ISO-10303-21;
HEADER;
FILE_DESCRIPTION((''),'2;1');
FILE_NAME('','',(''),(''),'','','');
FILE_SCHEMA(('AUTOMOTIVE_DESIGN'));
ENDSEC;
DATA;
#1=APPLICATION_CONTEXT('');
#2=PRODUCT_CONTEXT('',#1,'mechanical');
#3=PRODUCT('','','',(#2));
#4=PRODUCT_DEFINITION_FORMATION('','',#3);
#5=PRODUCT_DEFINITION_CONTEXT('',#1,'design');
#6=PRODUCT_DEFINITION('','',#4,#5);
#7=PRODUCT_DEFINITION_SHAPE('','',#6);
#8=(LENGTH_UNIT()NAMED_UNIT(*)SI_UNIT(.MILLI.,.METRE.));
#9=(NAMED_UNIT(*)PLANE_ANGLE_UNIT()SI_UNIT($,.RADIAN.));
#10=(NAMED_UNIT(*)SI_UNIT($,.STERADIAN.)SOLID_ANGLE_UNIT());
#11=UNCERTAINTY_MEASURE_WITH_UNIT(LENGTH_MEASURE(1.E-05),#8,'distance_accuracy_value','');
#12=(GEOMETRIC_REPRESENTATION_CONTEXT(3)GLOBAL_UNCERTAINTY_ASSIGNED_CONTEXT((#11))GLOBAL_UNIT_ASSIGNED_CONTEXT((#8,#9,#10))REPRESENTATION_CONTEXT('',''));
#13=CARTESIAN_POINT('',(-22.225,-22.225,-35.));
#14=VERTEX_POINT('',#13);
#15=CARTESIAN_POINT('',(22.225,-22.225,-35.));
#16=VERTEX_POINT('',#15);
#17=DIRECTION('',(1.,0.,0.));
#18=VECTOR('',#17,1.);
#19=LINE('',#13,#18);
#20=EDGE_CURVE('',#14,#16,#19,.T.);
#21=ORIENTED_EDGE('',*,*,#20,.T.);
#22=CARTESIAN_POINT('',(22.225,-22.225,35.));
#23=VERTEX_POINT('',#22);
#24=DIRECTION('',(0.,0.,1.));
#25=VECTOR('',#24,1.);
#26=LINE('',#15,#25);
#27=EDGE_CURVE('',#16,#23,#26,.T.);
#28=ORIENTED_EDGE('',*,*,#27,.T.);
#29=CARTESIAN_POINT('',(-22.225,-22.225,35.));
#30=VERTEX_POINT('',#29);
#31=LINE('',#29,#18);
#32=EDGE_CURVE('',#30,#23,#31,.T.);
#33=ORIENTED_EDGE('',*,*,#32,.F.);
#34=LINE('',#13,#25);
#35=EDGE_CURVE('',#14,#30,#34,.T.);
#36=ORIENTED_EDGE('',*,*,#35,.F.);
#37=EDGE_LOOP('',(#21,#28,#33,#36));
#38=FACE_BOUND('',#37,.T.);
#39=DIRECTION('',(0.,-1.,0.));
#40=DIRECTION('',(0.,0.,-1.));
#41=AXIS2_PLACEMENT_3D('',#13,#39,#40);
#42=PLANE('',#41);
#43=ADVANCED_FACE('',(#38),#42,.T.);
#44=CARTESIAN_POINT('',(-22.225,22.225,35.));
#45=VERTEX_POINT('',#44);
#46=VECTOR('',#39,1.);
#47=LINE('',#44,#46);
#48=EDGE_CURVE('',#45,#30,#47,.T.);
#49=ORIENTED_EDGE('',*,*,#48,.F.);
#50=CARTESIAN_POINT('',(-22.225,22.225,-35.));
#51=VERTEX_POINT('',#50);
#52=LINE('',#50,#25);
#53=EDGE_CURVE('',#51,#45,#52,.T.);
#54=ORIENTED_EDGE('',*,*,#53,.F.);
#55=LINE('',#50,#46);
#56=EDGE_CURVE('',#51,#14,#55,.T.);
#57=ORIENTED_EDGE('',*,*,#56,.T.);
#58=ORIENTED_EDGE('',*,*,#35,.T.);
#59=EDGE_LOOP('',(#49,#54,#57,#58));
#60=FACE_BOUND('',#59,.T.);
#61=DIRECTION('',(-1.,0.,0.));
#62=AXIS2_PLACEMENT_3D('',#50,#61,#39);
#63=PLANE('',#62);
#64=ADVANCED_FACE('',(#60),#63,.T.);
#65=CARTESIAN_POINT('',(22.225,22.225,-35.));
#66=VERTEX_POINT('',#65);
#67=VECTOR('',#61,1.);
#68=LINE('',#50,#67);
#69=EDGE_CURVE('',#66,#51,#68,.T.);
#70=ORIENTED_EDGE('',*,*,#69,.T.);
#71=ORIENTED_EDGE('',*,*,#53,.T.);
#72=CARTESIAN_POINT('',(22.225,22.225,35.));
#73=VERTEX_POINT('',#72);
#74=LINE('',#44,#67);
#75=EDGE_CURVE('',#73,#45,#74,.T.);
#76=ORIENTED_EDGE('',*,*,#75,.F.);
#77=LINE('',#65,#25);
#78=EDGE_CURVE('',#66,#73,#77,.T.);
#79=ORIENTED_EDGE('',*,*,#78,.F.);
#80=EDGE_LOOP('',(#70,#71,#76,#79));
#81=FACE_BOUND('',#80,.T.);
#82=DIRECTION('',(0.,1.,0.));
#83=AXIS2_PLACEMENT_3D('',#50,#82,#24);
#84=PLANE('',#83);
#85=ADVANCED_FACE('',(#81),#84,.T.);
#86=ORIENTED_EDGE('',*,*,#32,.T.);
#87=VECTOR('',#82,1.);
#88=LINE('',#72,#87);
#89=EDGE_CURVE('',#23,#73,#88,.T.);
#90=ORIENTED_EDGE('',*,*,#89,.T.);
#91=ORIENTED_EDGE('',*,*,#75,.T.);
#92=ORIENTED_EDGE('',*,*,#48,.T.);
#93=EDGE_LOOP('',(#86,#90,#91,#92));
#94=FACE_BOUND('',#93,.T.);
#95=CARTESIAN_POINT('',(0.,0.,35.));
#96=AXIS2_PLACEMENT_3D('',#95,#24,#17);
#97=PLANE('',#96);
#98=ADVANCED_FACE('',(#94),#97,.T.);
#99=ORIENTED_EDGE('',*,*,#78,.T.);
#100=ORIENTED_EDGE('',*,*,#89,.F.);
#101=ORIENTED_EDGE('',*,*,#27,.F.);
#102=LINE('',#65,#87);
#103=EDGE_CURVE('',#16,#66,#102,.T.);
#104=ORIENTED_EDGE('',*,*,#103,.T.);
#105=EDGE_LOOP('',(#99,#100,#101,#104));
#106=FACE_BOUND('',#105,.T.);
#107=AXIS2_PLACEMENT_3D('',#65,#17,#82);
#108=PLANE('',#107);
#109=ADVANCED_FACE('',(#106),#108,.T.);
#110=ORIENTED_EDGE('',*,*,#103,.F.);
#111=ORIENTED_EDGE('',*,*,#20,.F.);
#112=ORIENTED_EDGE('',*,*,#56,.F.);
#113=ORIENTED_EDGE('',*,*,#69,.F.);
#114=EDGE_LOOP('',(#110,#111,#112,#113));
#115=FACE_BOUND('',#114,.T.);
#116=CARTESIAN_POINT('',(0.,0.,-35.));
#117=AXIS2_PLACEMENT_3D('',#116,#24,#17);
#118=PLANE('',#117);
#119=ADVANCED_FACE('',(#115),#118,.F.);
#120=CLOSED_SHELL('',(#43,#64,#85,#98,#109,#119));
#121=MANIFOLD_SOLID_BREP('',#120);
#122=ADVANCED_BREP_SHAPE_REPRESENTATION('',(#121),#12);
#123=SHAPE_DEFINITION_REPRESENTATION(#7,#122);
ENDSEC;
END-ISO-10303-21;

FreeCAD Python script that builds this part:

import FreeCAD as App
import Part
import Sketcher
from FreeCAD import Vector
Q = App.Units.Quantity

doc = App.newDocument("Part")
body = doc.addObject("PartDesign::Body", "Body")

# Sketch on XY plane
sketch1 = doc.addObject("Sketcher::SketchObject", "Sketch")
body.addObject(sketch1)
sketch1.AttachmentSupport = (doc.XY_Plane, [""])
sketch1.MapMode = "FlatFace"
sketch1.addGeometry(Part.LineSegment(Vector(-22, 22, 0), Vector(-22, -22, 0)), False)
sketch1.addGeometry(Part.LineSegment(Vector(-22, -22, 0), Vector(22, -22, 0)), False)
sketch1.addGeometry(Part.LineSegment(Vector(22, -22, 0), Vector(22, 22, 0)), False)
sketch1.addGeometry(Part.LineSegment(Vector(22, 22, 0), Vector(-22, 22, 0)), False)
sketch1.addConstraint(Sketcher.Constraint("Coincident", 0, 2, 1, 1))
sketch1.addConstraint(Sketcher.Constraint("Coincident", 1, 2, 2, 1))
sketch1.addConstraint(Sketcher.Constraint("Coincident", 2, 2, 3, 1))
sketch1.addConstraint(Sketcher.Constraint("Coincident", 3, 2, 0, 1))
sketch1.addConstraint(Sketcher.Constraint("Vertical", 0))
sketch1.addConstraint(Sketcher.Constraint("Horizontal", 1))
sketch1.addConstraint(Sketcher.Constraint("Vertical", 2))
sketch1.addConstraint(Sketcher.Constraint("Horizontal", 3))
sketch1.addConstraint(Sketcher.Constraint("Symmetric", 0, 2, 2, 2, -1, 1))
sketch1.addConstraint(Sketcher.Constraint("Equal", 3, 0))
sketch1.addConstraint(Sketcher.Constraint("DistanceX", 1, 1, 1, 2, Q("44.45 mm")))
pad1 = doc.addObject("PartDesign::Pad", "Pad")
body.addObject(pad1)
pad1.Profile = sketch1
pad1.Type = "TwoLengths"
pad1.Length = 35
pad1.Length2 = 35

doc.recompute()
